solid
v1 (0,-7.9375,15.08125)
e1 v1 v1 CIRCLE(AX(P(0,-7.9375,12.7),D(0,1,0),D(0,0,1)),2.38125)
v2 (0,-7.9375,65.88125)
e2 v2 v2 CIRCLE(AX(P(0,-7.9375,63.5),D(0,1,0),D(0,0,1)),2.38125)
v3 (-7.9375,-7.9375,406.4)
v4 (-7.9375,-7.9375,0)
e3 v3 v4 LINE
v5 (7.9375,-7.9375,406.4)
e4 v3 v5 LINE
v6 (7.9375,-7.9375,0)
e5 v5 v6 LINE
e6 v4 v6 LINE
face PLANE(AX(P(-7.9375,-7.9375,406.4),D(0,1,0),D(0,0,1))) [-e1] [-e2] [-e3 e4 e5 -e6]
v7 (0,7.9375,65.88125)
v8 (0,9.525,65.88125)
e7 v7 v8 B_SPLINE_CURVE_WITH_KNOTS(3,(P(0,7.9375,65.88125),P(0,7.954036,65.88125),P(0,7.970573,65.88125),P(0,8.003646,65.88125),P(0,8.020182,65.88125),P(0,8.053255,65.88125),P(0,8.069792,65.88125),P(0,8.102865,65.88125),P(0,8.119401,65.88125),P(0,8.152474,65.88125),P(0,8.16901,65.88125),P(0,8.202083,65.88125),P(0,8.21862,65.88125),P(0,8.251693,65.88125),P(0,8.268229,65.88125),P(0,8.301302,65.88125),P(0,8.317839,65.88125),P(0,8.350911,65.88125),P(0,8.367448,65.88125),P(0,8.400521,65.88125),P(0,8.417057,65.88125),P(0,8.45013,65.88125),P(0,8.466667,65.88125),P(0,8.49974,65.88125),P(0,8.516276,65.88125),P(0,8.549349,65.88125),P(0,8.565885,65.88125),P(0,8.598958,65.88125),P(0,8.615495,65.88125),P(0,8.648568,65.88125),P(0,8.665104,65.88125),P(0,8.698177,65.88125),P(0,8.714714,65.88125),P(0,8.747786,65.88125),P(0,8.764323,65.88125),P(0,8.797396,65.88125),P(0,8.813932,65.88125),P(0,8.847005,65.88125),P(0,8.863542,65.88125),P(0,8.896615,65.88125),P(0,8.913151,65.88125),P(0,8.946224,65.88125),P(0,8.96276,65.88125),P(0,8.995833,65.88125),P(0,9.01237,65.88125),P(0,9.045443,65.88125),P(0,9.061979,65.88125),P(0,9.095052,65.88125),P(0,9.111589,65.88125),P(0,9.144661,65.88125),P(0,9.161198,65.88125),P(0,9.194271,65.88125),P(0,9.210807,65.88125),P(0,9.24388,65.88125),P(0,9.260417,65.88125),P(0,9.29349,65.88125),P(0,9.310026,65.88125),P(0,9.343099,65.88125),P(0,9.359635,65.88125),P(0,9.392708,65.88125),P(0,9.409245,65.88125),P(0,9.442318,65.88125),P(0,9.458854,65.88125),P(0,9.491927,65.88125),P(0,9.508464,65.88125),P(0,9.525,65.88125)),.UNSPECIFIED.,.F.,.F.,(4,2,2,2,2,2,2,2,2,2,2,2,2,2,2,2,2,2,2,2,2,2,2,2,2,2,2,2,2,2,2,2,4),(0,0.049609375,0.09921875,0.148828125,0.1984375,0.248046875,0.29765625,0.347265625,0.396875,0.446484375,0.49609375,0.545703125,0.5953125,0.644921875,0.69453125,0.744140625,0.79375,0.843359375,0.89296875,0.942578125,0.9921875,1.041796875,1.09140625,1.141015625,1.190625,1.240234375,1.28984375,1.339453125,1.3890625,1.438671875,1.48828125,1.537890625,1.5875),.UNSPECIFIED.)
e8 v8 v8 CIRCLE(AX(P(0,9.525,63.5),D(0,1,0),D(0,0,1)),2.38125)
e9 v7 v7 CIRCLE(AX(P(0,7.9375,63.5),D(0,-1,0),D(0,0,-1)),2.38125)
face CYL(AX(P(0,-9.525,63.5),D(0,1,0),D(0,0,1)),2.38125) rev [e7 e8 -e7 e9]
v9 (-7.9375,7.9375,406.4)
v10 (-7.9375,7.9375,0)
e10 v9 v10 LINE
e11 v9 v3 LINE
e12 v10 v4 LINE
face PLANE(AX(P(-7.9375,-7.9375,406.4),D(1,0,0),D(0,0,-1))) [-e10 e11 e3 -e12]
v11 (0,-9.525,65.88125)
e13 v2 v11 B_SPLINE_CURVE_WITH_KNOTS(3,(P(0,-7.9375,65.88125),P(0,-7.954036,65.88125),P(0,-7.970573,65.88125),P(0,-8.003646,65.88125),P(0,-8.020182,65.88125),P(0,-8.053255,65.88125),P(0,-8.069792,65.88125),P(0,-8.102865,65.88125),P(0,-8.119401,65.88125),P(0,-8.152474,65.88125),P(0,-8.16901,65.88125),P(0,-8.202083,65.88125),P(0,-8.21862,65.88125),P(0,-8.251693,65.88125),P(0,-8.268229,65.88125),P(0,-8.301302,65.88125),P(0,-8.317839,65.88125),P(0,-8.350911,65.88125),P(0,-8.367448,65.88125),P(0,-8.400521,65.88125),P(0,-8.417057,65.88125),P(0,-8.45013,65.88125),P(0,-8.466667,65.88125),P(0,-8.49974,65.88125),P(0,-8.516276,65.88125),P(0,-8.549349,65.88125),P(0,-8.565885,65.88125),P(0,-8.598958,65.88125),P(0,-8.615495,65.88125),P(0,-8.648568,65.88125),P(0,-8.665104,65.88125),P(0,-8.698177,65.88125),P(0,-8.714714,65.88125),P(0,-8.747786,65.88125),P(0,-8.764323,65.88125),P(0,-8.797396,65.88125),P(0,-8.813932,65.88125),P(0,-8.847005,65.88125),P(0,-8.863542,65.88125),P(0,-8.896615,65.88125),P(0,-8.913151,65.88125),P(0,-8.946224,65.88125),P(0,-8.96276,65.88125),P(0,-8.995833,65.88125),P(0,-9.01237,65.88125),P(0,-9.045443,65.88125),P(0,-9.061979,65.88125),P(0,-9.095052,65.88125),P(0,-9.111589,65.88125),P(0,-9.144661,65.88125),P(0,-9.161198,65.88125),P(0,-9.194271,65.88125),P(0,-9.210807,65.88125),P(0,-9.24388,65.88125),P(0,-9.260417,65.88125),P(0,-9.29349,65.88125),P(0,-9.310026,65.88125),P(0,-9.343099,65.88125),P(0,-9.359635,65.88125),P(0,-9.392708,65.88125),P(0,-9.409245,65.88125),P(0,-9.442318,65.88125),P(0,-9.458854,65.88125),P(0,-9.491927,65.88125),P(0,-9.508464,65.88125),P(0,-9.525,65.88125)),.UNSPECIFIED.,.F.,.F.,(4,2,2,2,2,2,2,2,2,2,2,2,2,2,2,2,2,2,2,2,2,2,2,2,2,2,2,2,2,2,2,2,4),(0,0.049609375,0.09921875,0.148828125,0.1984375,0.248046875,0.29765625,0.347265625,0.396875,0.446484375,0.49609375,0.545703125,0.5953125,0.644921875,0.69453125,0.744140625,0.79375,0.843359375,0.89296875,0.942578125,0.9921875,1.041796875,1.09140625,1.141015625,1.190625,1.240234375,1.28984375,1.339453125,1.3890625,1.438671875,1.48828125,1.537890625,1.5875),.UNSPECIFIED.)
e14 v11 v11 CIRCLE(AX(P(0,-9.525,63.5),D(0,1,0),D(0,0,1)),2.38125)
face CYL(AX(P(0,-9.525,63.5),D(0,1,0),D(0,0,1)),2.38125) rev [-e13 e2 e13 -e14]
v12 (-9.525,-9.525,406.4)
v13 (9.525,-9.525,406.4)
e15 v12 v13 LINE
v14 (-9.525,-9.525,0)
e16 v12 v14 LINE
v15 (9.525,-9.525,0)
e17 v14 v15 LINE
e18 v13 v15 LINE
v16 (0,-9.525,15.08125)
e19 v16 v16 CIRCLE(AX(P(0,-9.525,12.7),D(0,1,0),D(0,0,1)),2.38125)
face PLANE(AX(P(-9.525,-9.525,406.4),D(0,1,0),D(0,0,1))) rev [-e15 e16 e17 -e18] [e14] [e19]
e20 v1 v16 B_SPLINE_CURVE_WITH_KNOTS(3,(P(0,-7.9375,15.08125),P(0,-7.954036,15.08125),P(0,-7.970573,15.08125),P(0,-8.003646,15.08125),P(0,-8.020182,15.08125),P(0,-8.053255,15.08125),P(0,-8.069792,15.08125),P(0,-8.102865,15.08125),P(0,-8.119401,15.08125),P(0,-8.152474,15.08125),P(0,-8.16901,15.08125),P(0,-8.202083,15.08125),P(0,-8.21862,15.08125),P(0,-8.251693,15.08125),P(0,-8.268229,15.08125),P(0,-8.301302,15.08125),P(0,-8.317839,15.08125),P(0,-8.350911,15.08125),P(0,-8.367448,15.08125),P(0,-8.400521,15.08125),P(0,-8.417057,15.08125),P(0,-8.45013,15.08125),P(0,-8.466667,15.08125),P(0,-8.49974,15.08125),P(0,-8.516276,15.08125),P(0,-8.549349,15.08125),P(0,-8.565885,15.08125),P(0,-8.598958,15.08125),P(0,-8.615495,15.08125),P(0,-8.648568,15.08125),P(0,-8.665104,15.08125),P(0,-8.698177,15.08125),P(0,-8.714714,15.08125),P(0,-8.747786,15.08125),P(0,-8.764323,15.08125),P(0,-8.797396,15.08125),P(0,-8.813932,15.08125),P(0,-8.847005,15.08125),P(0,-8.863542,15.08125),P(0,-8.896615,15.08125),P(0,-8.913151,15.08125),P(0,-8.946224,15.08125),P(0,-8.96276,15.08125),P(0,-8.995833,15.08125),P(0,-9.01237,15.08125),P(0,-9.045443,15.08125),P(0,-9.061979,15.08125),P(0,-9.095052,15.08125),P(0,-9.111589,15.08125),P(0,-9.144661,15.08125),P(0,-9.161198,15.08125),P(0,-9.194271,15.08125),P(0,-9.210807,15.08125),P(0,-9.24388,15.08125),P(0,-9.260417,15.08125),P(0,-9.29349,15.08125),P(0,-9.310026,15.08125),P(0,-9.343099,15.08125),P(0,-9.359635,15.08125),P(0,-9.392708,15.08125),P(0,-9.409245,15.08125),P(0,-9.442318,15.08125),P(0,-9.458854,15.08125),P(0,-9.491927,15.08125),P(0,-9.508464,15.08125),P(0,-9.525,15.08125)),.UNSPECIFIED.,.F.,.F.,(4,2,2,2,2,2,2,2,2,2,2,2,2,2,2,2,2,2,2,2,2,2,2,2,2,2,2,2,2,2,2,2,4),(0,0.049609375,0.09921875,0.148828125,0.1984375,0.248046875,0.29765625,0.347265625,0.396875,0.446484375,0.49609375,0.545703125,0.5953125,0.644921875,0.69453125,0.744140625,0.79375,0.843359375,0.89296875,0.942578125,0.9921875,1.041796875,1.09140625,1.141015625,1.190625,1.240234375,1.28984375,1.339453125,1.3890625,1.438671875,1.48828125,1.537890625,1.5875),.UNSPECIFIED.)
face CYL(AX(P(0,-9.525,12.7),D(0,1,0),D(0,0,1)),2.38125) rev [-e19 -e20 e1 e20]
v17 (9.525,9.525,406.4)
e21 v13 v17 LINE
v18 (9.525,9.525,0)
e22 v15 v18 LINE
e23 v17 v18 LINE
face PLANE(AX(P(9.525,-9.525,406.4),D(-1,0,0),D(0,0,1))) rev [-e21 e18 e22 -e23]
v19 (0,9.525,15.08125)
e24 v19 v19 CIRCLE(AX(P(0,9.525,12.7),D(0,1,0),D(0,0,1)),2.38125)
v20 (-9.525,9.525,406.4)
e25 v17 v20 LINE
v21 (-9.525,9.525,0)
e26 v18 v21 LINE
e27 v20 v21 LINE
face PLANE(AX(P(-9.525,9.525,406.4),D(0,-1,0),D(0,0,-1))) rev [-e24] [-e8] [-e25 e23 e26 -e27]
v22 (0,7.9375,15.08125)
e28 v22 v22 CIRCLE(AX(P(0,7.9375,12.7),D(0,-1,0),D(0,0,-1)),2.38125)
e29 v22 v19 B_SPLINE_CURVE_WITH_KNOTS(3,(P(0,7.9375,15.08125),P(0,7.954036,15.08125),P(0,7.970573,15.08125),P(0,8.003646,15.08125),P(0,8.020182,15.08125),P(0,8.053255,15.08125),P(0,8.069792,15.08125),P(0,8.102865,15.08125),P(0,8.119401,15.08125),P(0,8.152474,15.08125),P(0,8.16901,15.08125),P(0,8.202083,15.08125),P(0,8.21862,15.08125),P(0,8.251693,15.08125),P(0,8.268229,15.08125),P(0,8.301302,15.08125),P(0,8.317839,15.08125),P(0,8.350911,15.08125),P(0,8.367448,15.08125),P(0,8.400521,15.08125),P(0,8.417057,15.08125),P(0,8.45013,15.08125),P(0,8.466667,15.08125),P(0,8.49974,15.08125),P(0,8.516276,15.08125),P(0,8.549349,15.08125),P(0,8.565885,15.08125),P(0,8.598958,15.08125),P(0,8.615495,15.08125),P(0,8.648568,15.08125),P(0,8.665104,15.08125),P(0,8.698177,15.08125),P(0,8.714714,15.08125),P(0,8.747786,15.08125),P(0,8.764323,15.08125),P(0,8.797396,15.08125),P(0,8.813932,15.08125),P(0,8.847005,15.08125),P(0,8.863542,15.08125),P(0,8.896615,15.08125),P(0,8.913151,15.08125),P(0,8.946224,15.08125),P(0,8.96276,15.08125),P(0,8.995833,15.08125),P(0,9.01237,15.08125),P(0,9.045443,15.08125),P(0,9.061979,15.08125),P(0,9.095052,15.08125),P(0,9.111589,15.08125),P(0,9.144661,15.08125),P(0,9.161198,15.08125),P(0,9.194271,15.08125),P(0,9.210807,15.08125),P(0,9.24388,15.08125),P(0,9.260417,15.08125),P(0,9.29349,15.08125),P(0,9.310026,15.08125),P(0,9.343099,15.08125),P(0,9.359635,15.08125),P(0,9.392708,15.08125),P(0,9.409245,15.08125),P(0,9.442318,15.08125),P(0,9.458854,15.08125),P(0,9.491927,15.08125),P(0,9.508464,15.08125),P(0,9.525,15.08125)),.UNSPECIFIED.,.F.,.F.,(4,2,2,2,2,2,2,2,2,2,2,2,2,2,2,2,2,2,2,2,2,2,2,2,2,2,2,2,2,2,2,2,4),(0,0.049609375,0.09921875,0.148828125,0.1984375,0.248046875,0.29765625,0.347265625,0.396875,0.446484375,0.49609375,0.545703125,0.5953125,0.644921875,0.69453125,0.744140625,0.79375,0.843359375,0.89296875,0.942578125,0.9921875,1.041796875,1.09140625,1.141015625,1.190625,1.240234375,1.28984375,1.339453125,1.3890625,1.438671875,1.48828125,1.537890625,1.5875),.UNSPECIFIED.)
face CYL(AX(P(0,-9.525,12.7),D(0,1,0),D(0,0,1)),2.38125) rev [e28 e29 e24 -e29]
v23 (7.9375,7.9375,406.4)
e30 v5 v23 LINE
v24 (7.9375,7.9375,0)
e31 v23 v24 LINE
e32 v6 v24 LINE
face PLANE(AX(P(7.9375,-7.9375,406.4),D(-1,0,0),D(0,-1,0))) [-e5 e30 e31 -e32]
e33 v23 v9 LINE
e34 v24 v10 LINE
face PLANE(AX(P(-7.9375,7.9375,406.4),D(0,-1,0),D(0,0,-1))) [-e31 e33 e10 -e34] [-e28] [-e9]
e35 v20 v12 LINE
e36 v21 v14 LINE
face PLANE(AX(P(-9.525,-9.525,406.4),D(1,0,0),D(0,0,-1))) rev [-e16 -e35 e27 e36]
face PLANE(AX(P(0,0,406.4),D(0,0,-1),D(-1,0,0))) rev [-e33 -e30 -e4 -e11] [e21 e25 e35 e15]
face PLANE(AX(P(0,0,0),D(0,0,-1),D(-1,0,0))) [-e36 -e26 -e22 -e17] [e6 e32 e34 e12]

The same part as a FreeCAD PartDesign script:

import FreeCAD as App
import Part
import Sketcher

V = App.Vector
Q = App.Units.Quantity

doc = App.newDocument("Part")
params = doc.addObject("Spreadsheet::Sheet", "Params")
for row, (alias, value) in enumerate([
    ("sketch1_width", "0.75 in"),
    ("sketch1_width2", "0.625 in"),
    ("pad1_length", "16 in"),
    ("sketch2_diameter", "0.1875 in"),
], start=1):
    params.set(f"A{row}", alias)
    params.set(f"B{row}", "=" + value)
    params.setAlias(f"B{row}", alias)

body = doc.addObject("PartDesign::Body", "Body")

sketch1 = doc.addObject("Sketcher::SketchObject", "Sketch")
body.addObject(sketch1)
sketch1.AttachmentSupport = (doc.XY_Plane, [""])
sketch1.MapMode = "FlatFace"
sketch1.addGeometry([
    Part.LineSegment(V(-10, 10, 0), V(-10, -10, 0)),
    Part.LineSegment(V(-10, -10, 0), V(10, -10, 0)),
    Part.LineSegment(V(10, -10, 0), V(10, 10, 0)),
    Part.LineSegment(V(10, 10, 0), V(-10, 10, 0)),
    Part.LineSegment(V(8, -8, 0), V(-8, -8, 0)),
    Part.LineSegment(V(-8, -8, 0), V(-8, 8, 0)),
    Part.LineSegment(V(-8, 8, 0), V(8, 8, 0)),
    Part.LineSegment(V(8, 8, 0), V(8, -8, 0)),
], False)
sketch1.addConstraint([
    Sketcher.Constraint("Coincident", 0, 2, 1, 1),
    Sketcher.Constraint("Coincident", 1, 2, 2, 1),
    Sketcher.Constraint("Coincident", 2, 2, 3, 1),
    Sketcher.Constraint("Coincident", 3, 2, 0, 1),
    Sketcher.Constraint("Coincident", 4, 2, 5, 1),
    Sketcher.Constraint("Coincident", 5, 2, 6, 1),
    Sketcher.Constraint("Coincident", 6, 2, 7, 1),
    Sketcher.Constraint("Coincident", 7, 2, 4, 1),
    Sketcher.Constraint("Vertical", 0),
    Sketcher.Constraint("Horizontal", 1),
    Sketcher.Constraint("Vertical", 2),
    Sketcher.Constraint("Horizontal", 3),
    Sketcher.Constraint("Horizontal", 4),
    Sketcher.Constraint("Vertical", 5),
    Sketcher.Constraint("Horizontal", 6),
    Sketcher.Constraint("Vertical", 7),
    Sketcher.Constraint("Symmetric", 0, 2, 2, 2, -1, 1),
    Sketcher.Constraint("Symmetric", 4, 2, 6, 2, -1, 1),
    Sketcher.Constraint("Equal", 3, 0),
    Sketcher.Constraint("Equal", 6, 5),
    Sketcher.Constraint("DistanceX", 1, 1, 1, 2, Q("0.75 in")),
    Sketcher.Constraint("DistanceX", 4, 2, 4, 1, Q("0.625 in")),
])
sketch1.setExpression("Constraints[20]", "Params.sketch1_width")
sketch1.setExpression("Constraints[21]", "Params.sketch1_width2")
pad1 = doc.addObject("PartDesign::Pad", "Pad")
body.addObject(pad1)
pad1.Profile = sketch1
pad1.setExpression("Length", "Params.pad1_length")

sketch2 = doc.addObject("Sketcher::SketchObject", "Sketch001")
body.addObject(sketch2)
sketch2.AttachmentSupport = (doc.XZ_Plane, [""])
sketch2.MapMode = "FlatFace"
sketch2.addGeometry([
    Part.Circle(V(0, 12.7, 0), V(0, 0, 1), 2.4),
    Part.Circle(V(0, 63.5, 0), V(0, 0, 1), 2.4),
], False)
sketch2.addConstraint([
    Sketcher.Constraint("Equal", 0, 1),
    Sketcher.Constraint("PointOnObject", 0, 3, -2),
    Sketcher.Constraint("PointOnObject", 1, 3, -2),
    Sketcher.Constraint("Diameter", 0, Q("0.1875 in")),
    Sketcher.Constraint("DistanceY", 0, 3, 1, 3, Q("2 in")),
    Sketcher.Constraint("DistanceY", -1, 1, 0, 3, Q("0.5 in")),
])
sketch2.setExpression("Constraints[3]", "Params.sketch2_diameter")
pocket1 = doc.addObject("PartDesign::Pocket", "Pocket")
body.addObject(pocket1)
pocket1.Profile = sketch2
pocket1.Type = "ThroughAll"
pocket1.Midplane = True

doc.recompute()
